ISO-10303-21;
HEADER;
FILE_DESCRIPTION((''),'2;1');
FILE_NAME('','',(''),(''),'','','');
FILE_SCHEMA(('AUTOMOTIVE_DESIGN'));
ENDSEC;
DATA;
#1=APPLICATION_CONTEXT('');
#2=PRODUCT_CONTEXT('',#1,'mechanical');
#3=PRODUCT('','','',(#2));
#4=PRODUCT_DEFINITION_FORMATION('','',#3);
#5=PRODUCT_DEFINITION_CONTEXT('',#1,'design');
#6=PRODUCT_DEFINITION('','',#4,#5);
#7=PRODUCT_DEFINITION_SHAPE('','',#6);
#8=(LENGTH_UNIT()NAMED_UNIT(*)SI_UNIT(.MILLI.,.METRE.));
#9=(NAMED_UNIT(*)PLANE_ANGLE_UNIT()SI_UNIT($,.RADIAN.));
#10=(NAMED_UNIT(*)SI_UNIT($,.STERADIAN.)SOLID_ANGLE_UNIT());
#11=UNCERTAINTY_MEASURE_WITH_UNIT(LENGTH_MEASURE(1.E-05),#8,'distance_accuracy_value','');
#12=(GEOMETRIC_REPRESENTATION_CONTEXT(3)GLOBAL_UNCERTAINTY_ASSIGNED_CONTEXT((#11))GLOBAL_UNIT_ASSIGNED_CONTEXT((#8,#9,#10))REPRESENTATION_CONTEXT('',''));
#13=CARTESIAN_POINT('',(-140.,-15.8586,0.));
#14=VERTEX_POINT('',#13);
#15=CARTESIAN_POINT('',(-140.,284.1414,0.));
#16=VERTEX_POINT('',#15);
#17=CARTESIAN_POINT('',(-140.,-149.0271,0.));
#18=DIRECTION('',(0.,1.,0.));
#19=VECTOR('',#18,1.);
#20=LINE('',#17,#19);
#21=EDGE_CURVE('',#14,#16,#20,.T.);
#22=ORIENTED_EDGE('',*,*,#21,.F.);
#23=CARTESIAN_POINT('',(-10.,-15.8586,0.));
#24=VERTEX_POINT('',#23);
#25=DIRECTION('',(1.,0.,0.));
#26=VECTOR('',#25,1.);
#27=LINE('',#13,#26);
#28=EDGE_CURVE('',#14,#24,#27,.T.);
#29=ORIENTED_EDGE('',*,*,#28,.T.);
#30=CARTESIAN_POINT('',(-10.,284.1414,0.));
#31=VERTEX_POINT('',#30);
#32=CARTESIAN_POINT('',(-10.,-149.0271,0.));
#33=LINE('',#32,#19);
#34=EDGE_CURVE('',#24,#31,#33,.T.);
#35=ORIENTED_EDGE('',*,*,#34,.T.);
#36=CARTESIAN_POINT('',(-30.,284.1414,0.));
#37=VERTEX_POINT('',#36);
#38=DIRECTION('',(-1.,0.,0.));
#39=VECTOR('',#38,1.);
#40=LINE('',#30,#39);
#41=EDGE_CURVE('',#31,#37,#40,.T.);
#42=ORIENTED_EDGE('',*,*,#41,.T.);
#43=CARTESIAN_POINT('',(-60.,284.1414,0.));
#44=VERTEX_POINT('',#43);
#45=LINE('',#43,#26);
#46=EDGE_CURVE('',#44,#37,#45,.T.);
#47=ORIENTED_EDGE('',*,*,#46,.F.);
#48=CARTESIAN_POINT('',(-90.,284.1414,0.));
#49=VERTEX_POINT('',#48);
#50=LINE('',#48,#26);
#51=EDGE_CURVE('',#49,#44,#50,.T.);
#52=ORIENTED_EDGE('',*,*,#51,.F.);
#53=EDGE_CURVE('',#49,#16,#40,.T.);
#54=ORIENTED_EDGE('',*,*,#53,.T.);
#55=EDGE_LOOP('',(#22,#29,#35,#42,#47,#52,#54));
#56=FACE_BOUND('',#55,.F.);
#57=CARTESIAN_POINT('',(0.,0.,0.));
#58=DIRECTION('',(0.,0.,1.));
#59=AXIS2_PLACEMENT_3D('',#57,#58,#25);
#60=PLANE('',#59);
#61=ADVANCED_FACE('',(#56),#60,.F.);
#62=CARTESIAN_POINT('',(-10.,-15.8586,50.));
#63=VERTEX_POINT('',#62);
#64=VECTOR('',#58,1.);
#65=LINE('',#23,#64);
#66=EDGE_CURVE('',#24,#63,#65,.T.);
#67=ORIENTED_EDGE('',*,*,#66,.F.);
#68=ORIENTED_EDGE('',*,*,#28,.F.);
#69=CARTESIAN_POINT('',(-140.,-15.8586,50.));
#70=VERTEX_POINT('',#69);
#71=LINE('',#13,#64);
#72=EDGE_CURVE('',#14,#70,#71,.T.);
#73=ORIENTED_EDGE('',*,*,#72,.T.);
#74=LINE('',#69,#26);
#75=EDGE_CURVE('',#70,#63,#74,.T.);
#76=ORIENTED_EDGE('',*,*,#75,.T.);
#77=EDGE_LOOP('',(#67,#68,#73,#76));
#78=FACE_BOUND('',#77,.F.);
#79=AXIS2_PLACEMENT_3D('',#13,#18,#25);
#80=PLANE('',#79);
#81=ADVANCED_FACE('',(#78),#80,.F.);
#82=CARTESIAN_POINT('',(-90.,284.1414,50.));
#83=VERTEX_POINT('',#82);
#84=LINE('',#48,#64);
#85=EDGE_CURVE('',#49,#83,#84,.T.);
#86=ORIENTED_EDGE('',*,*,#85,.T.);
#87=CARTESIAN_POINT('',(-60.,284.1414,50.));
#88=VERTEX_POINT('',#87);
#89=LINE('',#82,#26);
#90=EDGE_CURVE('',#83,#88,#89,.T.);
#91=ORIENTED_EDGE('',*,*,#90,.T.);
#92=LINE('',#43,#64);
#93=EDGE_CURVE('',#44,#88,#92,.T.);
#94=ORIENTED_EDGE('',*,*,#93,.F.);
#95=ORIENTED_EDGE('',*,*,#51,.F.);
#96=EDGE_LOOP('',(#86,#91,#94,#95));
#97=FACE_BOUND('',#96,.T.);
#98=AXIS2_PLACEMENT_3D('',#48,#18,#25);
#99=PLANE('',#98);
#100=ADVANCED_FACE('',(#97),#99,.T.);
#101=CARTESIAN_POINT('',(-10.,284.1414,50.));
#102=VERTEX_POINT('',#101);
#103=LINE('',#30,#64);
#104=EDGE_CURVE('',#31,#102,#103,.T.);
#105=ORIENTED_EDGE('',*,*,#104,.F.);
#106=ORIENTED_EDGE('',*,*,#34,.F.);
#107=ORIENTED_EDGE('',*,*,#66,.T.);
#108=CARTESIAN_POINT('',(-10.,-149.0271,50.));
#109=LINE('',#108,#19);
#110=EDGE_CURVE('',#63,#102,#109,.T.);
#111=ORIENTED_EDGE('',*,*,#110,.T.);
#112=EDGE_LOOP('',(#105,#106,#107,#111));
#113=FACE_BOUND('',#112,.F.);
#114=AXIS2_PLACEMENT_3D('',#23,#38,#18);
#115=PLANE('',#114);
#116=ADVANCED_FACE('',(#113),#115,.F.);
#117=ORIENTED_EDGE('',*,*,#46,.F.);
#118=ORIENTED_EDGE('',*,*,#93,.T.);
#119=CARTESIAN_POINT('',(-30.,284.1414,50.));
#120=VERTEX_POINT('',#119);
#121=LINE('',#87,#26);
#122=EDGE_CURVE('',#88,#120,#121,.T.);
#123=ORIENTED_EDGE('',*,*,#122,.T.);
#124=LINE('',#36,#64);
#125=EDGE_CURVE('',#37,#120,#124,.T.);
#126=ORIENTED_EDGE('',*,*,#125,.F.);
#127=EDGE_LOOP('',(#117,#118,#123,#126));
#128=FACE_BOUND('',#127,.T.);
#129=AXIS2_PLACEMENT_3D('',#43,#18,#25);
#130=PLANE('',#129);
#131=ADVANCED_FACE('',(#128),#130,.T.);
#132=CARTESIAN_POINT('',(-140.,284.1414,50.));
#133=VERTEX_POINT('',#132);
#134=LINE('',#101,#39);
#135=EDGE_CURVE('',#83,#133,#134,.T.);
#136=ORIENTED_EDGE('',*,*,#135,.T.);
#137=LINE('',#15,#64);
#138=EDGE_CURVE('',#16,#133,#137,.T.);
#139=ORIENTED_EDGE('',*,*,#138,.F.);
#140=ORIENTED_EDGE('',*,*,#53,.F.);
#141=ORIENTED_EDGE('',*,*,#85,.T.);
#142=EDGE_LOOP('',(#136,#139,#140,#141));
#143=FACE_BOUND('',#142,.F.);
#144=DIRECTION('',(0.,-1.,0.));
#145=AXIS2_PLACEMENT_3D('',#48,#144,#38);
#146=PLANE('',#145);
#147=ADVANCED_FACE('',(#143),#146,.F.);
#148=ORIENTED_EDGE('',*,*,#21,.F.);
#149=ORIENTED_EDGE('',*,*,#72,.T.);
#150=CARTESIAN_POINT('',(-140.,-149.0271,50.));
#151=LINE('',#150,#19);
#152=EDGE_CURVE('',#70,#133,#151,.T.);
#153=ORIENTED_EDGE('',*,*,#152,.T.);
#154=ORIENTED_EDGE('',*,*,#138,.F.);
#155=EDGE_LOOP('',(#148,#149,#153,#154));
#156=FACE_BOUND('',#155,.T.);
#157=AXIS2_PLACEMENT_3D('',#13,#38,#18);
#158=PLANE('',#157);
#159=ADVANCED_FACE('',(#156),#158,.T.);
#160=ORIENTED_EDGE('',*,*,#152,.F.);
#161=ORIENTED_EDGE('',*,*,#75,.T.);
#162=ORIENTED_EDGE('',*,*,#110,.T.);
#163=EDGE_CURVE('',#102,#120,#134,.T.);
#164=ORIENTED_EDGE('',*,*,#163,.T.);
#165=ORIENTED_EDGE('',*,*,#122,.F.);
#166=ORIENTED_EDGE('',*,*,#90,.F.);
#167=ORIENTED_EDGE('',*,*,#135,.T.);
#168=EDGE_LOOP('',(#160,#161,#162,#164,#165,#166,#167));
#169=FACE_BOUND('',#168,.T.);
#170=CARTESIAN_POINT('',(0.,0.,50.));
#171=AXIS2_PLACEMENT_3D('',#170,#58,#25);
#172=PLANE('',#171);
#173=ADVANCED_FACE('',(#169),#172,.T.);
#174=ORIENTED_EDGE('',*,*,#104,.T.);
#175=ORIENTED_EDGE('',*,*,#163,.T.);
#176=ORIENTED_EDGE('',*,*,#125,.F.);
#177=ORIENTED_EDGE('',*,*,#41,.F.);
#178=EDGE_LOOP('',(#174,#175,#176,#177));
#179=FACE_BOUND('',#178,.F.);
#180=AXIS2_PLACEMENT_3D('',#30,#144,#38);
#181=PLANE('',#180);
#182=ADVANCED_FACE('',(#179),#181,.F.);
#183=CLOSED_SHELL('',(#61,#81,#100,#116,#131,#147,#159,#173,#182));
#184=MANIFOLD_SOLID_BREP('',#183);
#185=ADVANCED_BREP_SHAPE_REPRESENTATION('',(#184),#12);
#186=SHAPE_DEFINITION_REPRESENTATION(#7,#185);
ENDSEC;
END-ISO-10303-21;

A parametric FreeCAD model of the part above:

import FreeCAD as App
import Part
import Sketcher
Q = App.Units.Quantity

doc = App.newDocument("Part")
body = doc.addObject("PartDesign::Body", "Body")

sketch1 = body.newObject("Sketcher::SketchObject", "Sketch")
sketch1.AttachmentSupport = (doc.getObject("XY_Plane"), [""])
sketch1.MapMode = "FlatFace"
sketch1.addGeometry(Part.LineSegment(App.Vector(-10, 284, 0), App.Vector(-140, 284, 0)), False)
sketch1.addGeometry(Part.LineSegment(App.Vector(-140, 284, 0), App.Vector(-140, -16, 0)), False)
sketch1.addGeometry(Part.LineSegment(App.Vector(-140, -16, 0), App.Vector(-10, -16, 0)), False)
sketch1.addGeometry(Part.LineSegment(App.Vector(-10, -16, 0), App.Vector(-10, 284, 0)), False)
sketch1.addConstraint(Sketcher.Constraint("Coincident", 0, 2, 1, 1))
sketch1.addConstraint(Sketcher.Constraint("Coincident", 1, 2, 2, 1))
sketch1.addConstraint(Sketcher.Constraint("Coincident", 2, 2, 3, 1))
sketch1.addConstraint(Sketcher.Constraint("Coincident", 3, 2, 0, 1))
sketch1.addConstraint(Sketcher.Constraint("Horizontal", 0))
sketch1.addConstraint(Sketcher.Constraint("Vertical", 1))
sketch1.addConstraint(Sketcher.Constraint("Horizontal", 2))
sketch1.addConstraint(Sketcher.Constraint("Vertical", 3))
sketch1.addConstraint(Sketcher.Constraint("DistanceX", 0, 2, 0, 1, Q("130 mm")))
sketch1.addConstraint(Sketcher.Constraint("DistanceY", 1, 2, 1, 1, Q("300 mm")))
sketch1.addConstraint(Sketcher.Constraint("DistanceX", 0, 2, -1, 1, Q("140 mm")))
sketch1.addConstraint(Sketcher.Constraint("DistanceY", -1, 1, 0, 2, Q("284.1414 mm")))
pad1 = body.newObject("PartDesign::Pad", "Pad")
pad1.Profile = sketch1
pad1.Length = 50

doc.recompute()
